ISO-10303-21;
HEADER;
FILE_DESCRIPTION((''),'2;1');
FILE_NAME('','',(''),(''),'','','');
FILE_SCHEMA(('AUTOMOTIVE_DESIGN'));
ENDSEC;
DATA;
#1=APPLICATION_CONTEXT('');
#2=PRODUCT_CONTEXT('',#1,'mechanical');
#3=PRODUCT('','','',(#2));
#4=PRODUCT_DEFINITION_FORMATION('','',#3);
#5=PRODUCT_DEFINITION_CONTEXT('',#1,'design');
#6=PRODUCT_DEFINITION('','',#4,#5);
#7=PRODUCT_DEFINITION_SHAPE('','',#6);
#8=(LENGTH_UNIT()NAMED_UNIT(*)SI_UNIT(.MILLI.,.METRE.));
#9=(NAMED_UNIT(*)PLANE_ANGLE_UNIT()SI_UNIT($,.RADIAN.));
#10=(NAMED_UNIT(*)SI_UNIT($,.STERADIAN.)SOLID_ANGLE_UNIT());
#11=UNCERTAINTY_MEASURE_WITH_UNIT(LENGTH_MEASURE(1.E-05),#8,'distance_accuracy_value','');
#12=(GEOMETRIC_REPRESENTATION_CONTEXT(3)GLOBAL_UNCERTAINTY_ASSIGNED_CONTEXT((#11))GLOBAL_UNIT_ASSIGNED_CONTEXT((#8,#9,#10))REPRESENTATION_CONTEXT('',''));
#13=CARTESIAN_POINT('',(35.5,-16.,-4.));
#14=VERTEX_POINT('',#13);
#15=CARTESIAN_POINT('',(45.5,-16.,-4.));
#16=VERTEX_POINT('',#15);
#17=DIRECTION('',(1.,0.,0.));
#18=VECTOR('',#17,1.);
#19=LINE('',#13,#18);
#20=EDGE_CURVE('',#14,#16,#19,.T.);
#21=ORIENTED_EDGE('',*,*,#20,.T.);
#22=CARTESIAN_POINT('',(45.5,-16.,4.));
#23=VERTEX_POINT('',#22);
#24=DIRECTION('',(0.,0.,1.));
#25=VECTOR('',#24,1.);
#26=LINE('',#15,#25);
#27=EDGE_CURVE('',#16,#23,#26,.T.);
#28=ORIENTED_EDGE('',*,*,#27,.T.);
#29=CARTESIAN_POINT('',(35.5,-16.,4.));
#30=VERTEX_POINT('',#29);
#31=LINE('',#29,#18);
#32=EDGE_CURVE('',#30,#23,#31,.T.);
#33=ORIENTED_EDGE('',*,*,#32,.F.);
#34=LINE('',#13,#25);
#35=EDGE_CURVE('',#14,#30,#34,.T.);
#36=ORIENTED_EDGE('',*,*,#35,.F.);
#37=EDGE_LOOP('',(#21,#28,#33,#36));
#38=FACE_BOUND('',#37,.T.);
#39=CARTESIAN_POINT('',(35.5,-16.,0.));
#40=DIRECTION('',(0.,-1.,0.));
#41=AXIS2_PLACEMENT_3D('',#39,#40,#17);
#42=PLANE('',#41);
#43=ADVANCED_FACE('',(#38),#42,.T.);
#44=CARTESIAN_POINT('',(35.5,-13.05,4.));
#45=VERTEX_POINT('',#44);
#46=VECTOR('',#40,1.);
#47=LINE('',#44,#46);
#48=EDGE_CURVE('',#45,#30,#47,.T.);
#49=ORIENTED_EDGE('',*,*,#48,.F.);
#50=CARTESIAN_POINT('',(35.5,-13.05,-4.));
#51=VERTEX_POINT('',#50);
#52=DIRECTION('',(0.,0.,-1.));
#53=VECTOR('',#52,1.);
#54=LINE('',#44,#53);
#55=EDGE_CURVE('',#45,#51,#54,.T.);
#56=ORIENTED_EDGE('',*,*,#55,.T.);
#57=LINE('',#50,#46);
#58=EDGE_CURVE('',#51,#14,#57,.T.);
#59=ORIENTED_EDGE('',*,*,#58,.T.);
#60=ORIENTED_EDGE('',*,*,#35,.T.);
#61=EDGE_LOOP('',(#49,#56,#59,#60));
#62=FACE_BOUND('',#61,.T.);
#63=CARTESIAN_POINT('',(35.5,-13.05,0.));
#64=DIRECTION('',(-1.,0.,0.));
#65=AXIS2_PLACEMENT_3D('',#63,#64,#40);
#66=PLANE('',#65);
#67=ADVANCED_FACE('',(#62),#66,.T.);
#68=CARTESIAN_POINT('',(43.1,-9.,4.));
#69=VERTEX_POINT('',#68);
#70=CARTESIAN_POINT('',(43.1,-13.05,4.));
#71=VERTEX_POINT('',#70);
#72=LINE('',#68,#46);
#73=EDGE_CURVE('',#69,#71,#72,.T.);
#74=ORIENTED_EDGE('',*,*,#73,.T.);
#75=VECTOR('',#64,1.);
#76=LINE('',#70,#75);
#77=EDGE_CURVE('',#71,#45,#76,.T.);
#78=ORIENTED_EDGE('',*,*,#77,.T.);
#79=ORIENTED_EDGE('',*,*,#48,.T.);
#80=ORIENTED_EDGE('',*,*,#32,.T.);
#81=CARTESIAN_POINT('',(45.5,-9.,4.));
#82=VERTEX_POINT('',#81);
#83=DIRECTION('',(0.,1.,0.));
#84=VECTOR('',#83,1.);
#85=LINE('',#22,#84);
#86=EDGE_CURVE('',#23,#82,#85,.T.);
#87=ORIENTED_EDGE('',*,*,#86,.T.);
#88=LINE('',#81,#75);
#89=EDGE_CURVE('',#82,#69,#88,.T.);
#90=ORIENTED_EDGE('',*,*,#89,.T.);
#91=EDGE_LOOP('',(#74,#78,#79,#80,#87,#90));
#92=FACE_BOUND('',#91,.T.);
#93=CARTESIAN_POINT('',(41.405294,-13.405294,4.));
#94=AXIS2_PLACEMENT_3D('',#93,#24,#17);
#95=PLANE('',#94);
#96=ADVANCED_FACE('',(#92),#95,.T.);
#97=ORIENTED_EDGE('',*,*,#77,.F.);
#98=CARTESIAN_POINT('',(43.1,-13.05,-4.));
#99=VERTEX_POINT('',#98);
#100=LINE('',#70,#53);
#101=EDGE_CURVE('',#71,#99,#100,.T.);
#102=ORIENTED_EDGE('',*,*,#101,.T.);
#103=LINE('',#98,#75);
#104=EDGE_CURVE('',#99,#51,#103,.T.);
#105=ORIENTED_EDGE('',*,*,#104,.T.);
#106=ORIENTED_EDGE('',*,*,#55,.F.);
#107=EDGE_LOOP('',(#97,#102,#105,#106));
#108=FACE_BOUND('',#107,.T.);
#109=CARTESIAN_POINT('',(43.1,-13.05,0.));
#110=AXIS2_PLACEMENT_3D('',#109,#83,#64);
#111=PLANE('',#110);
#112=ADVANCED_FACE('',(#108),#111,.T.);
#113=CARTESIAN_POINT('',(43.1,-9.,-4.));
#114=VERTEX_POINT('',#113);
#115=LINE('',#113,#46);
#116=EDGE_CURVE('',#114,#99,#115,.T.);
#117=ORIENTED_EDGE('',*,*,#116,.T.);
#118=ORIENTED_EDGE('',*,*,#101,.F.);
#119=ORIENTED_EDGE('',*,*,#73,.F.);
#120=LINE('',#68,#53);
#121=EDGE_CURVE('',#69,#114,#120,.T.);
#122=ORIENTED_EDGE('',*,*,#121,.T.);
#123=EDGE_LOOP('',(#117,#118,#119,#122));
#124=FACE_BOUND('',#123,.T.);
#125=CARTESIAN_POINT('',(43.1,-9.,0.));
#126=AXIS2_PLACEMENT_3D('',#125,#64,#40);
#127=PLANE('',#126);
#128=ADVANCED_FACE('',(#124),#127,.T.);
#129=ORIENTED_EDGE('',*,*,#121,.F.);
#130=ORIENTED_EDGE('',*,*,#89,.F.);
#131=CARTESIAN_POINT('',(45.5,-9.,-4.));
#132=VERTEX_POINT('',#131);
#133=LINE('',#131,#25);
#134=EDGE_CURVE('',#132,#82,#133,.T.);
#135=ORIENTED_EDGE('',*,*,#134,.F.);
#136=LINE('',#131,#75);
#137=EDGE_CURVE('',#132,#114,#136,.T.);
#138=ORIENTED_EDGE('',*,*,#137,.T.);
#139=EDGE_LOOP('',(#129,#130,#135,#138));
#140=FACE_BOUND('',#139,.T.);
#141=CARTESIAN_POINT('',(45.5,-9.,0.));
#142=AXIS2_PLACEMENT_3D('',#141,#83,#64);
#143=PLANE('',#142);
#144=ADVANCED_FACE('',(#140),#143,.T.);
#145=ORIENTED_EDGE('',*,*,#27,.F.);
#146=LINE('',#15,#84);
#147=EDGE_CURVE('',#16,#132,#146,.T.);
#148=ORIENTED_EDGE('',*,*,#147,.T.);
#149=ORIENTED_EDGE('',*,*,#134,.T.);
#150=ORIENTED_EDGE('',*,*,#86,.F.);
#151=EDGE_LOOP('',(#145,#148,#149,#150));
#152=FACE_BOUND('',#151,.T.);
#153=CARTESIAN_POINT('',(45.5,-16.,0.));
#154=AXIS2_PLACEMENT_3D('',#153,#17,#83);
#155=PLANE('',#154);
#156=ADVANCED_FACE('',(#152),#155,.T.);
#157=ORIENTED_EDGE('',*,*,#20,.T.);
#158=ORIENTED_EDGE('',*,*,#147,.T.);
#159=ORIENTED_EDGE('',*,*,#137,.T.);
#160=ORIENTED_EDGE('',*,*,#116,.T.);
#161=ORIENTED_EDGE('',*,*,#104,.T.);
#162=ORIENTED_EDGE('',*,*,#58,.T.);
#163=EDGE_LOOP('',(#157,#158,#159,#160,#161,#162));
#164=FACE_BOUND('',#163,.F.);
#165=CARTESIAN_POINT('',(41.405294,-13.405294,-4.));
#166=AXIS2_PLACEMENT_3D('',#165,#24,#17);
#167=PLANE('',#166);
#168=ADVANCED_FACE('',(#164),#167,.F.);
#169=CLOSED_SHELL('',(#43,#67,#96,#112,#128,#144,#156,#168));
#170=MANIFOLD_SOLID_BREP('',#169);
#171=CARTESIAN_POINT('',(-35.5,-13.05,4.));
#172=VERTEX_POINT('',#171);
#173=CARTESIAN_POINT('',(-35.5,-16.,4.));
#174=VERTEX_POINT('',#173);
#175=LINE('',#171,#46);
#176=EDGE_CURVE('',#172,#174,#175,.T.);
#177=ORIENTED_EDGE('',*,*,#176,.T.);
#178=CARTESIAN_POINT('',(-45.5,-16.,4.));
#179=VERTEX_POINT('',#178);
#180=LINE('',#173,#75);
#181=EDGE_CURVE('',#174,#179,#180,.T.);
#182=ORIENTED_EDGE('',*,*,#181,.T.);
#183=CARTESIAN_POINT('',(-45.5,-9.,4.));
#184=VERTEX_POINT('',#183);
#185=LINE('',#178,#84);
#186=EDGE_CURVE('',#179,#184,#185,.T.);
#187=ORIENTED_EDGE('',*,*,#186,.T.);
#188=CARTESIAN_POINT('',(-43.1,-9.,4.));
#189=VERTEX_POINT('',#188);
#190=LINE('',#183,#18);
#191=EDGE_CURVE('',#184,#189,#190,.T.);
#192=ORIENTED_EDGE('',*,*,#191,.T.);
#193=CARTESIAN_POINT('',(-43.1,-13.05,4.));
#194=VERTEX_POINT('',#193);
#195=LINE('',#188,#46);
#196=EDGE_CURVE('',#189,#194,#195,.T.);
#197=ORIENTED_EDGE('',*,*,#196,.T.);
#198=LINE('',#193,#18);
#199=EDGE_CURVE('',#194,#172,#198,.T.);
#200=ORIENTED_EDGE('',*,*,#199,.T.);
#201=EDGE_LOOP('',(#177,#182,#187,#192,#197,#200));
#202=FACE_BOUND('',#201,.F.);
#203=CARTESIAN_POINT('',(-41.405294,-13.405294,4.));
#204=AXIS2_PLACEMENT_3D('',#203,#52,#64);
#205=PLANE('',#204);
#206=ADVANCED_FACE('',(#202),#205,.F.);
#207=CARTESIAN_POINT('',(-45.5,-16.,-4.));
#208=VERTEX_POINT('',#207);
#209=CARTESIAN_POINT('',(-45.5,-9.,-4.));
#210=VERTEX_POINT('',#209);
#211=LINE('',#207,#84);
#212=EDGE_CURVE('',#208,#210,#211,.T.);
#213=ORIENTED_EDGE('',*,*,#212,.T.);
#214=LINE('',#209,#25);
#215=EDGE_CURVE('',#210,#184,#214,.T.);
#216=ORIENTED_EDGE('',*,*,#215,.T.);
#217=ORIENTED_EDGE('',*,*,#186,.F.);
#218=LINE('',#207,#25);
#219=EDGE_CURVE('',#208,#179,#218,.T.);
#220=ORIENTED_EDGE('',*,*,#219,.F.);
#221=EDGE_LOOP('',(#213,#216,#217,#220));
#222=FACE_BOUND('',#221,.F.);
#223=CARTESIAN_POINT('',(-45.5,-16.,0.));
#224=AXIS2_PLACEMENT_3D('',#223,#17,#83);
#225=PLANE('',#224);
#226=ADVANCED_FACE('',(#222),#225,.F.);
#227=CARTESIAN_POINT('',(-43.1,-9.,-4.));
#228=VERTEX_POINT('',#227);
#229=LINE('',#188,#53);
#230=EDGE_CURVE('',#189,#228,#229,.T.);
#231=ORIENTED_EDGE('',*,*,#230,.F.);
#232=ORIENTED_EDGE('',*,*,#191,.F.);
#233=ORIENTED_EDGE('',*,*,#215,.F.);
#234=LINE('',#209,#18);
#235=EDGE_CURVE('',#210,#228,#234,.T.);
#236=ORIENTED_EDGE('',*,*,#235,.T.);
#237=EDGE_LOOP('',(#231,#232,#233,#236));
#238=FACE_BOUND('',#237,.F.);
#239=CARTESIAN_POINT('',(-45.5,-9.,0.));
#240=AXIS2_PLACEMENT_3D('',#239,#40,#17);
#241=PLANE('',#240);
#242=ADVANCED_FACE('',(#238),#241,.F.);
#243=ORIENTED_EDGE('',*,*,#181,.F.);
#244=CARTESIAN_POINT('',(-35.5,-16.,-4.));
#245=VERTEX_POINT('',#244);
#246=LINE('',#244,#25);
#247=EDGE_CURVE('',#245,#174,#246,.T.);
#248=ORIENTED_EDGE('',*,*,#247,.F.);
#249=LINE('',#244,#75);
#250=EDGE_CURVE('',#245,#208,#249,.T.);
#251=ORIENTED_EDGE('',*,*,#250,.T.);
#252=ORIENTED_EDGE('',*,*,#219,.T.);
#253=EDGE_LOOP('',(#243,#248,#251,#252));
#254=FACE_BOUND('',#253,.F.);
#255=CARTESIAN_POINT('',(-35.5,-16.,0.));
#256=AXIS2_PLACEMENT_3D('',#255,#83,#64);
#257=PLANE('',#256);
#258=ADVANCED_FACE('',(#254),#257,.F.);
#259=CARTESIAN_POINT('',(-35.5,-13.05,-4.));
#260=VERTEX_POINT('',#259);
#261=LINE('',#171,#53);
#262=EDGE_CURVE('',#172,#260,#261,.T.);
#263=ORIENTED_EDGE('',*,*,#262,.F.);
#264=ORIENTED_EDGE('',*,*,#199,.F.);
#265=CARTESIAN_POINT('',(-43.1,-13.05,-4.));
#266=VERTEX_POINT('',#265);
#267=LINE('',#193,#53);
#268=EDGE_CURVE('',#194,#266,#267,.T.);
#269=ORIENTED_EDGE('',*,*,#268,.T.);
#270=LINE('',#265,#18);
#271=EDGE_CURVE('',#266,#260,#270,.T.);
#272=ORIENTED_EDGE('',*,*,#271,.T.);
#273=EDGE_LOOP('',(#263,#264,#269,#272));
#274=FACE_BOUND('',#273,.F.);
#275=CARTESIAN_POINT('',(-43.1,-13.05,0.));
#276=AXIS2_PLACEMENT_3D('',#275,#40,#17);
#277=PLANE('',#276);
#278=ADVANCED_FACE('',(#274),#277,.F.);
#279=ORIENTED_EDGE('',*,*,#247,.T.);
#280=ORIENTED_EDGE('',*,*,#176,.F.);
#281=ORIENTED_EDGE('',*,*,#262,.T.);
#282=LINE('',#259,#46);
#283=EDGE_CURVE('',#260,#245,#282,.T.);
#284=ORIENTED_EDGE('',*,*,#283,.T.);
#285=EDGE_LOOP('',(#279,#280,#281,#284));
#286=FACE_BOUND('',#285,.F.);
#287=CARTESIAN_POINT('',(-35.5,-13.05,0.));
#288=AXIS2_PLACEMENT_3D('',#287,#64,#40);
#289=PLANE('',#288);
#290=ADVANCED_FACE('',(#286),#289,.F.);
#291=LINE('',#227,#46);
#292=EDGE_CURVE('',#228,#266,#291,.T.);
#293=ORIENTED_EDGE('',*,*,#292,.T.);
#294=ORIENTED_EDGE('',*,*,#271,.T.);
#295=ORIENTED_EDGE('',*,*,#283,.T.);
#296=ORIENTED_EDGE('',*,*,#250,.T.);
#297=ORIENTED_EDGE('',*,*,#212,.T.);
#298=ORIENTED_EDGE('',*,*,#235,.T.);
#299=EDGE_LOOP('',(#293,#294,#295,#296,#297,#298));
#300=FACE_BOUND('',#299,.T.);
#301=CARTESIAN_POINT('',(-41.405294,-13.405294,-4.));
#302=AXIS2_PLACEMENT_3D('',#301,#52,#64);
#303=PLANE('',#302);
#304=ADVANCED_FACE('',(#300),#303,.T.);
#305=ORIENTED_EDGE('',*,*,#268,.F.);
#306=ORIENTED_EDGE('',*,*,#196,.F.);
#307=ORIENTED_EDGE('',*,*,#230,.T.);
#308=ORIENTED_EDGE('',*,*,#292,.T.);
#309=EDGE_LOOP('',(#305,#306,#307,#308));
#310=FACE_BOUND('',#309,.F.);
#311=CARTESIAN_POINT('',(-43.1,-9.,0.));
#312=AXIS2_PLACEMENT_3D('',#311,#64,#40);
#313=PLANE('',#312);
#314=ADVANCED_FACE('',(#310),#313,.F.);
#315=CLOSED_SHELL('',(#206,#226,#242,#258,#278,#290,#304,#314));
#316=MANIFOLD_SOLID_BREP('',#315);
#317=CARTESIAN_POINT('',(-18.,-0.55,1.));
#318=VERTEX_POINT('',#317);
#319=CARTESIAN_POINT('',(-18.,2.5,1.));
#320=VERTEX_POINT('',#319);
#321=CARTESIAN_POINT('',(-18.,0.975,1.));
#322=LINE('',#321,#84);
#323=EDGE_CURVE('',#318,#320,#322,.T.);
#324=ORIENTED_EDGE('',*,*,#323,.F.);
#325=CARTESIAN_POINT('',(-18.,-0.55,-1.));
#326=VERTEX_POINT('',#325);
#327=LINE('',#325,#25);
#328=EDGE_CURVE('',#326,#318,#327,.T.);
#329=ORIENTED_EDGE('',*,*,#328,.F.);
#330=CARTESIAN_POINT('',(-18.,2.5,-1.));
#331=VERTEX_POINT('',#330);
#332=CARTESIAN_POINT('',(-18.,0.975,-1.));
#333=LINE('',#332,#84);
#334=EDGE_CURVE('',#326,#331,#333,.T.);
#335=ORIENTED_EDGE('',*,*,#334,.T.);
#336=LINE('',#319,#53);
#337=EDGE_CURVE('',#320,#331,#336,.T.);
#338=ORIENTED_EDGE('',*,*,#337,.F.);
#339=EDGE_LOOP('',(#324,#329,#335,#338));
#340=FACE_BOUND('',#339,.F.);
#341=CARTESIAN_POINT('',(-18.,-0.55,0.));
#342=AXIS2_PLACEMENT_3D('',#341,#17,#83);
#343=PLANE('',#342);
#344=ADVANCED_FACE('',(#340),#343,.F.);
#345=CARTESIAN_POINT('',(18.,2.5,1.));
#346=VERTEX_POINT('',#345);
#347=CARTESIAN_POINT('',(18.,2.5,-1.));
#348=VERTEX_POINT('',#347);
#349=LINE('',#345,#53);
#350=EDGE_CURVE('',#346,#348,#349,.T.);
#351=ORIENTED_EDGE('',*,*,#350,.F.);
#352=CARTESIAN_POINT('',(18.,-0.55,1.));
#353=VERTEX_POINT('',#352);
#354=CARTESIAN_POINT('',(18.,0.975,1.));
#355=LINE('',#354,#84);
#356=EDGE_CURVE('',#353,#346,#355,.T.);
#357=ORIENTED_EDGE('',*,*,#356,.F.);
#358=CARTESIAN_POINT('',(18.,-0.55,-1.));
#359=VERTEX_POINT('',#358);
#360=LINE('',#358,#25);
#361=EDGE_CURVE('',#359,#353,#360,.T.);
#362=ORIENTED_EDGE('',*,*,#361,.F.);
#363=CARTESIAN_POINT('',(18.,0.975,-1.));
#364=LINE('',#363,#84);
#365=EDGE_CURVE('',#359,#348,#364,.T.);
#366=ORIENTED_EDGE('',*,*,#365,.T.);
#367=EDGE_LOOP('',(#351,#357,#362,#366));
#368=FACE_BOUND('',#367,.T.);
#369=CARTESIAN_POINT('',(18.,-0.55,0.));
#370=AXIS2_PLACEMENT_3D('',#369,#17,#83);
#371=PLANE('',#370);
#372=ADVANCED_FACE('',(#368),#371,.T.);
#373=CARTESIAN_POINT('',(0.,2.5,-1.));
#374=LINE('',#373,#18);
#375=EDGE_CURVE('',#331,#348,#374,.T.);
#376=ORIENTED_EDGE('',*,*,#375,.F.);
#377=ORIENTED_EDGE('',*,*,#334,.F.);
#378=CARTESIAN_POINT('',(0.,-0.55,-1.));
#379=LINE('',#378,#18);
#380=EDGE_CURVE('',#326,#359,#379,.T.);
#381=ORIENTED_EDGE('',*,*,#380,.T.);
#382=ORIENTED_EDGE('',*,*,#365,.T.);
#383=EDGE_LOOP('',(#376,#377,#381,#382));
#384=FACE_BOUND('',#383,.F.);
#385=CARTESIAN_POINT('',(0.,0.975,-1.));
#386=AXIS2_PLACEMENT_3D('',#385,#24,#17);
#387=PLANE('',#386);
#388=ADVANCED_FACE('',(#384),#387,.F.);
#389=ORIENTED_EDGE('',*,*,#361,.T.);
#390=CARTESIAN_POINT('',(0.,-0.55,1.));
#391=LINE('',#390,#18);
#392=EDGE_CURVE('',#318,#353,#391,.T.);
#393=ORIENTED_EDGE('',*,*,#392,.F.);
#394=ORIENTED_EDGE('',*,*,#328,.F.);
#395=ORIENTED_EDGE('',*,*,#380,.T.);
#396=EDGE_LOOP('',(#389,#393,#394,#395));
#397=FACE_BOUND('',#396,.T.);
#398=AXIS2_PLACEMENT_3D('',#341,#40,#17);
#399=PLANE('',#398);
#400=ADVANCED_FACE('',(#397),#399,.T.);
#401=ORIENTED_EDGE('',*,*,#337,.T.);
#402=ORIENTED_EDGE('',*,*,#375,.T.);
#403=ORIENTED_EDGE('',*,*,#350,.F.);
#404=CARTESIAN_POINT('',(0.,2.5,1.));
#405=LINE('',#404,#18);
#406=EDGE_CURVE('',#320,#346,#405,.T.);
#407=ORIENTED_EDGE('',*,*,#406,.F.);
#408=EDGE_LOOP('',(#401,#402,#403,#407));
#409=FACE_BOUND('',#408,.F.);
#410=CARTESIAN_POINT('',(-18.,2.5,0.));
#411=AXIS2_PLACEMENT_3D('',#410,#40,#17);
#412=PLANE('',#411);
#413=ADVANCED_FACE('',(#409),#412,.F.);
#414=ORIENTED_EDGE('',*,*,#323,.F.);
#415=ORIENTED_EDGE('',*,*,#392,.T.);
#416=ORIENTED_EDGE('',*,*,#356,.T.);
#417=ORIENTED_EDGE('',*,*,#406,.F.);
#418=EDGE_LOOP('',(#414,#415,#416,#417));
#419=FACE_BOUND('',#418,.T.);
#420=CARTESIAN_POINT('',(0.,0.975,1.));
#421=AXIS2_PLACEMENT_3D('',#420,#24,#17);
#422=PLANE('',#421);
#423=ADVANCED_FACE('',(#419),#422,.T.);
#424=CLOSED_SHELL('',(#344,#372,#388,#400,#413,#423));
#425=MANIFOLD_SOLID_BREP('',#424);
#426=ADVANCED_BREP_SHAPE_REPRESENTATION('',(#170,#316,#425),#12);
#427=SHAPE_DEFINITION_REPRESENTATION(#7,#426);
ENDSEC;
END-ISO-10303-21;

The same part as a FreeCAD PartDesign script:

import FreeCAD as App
import Part
import Sketcher
from FreeCAD import Vector

doc = App.newDocument("Part")
params = doc.addObject("Spreadsheet::Sheet", "Params")
for row, (alias, value) in enumerate([
    ("sketch1_width", "36 mm"),
    ("sketch1_height", "3.05 mm"),
    ("pad1_length", "2 mm"),
    ("sketch2_width", "10 mm"),
    ("sketch2_height", "7 mm"),
    ("sketch2_width2", "2.4 mm"),
    ("sketch2_height2", "2.95 mm"),
    ("pad2_length", "8 mm"),
    ("sketch3_width", "10 mm"),
    ("sketch3_height", "7 mm"),
    ("sketch3_width2", "2.4 mm"),
    ("sketch3_height2", "2.95 mm"),
    ("pad3_length", "8 mm"),
], start=1):
    params.set(f"A{row}", alias)
    params.set(f"B{row}", "=" + value)
    params.setAlias(f"B{row}", alias)

body = doc.addObject("PartDesign::Body", "Body")

# Sketch on XY plane
sketch1 = body.newObject("Sketcher::SketchObject", "Sketch")
sketch1.AttachmentSupport = (doc.getObject("XY_Plane"), [""])
sketch1.MapMode = "FlatFace"
sketch1.addGeometry(Part.LineSegment(Vector(-18, 2.5, 0), Vector(-18, -0.6, 0)), False)
sketch1.addGeometry(Part.LineSegment(Vector(-18, -0.6, 0), Vector(18, -0.6, 0)), False)
sketch1.addGeometry(Part.LineSegment(Vector(18, -0.6, 0), Vector(18, 2.5, 0)), False)
sketch1.addGeometry(Part.LineSegment(Vector(18, 2.5, 0), Vector(-18, 2.5, 0)), False)
sketch1.addConstraint(Sketcher.Constraint("Coincident", 0, 2, 1, 1))
sketch1.addConstraint(Sketcher.Constraint("Coincident", 1, 2, 2, 1))
sketch1.addConstraint(Sketcher.Constraint("Coincident", 2, 2, 3, 1))
sketch1.addConstraint(Sketcher.Constraint("Coincident", 3, 2, 0, 1))
sketch1.addConstraint(Sketcher.Constraint("Vertical", 0))
sketch1.addConstraint(Sketcher.Constraint("Horizontal", 1))
sketch1.addConstraint(Sketcher.Constraint("Vertical", 2))
sketch1.addConstraint(Sketcher.Constraint("Horizontal", 3))
sketch1.addConstraint(Sketcher.Constraint("DistanceX", 1, 1, 1, 2, 36.0))
sketch1.addConstraint(Sketcher.Constraint("DistanceX", 0, 2, -1, 1, 18.0))
sketch1.addConstraint(Sketcher.Constraint("DistanceY", 0, 2, 0, 1, 3.05))
sketch1.addConstraint(Sketcher.Constraint("DistanceY", -1, 1, 2, 2, 2.5))
sketch1.setExpression("Constraints[8]", "Params.sketch1_width")
sketch1.setExpression("Constraints[10]", "Params.sketch1_height")
pad1 = body.newObject("PartDesign::Pad", "Pad")
pad1.Profile = sketch1
pad1.setExpression("Length", "Params.pad1_length")
pad1.Midplane = True
body2 = doc.addObject("PartDesign::Body", "Body001")

# Sketch on XY plane
sketch2 = body2.newObject("Sketcher::SketchObject", "Sketch001")
sketch2.AttachmentSupport = (doc.getObject("XY_Plane001"), [""])
sketch2.MapMode = "FlatFace"
sketch2.addGeometry(Part.LineSegment(Vector(-43.1, -9, 0), Vector(-45.5, -9, 0)), False)
sketch2.addGeometry(Part.LineSegment(Vector(-45.5, -9, 0), Vector(-45.5, -16, 0)), False)
sketch2.addGeometry(Part.LineSegment(Vector(-45.5, -16, 0), Vector(-35.5, -16, 0)), False)
sketch2.addGeometry(Part.LineSegment(Vector(-35.5, -16, 0), Vector(-35.5, -13.1, 0)), False)
sketch2.addGeometry(Part.LineSegment(Vector(-35.5, -13.1, 0), Vector(-43.1, -13.1, 0)), False)
sketch2.addGeometry(Part.LineSegment(Vector(-43.1, -13.1, 0), Vector(-43.1, -9, 0)), False)
sketch2.addConstraint(Sketcher.Constraint("Coincident", 0, 2, 1, 1))
sketch2.addConstraint(Sketcher.Constraint("Coincident", 1, 2, 2, 1))
sketch2.addConstraint(Sketcher.Constraint("Coincident", 2, 2, 3, 1))
sketch2.addConstraint(Sketcher.Constraint("Coincident", 3, 2, 4, 1))
sketch2.addConstraint(Sketcher.Constraint("Coincident", 4, 2, 5, 1))
sketch2.addConstraint(Sketcher.Constraint("Coincident", 5, 2, 0, 1))
sketch2.addConstraint(Sketcher.Constraint("Horizontal", 0))
sketch2.addConstraint(Sketcher.Constraint("Vertical", 1))
sketch2.addConstraint(Sketcher.Constraint("Horizontal", 2))
sketch2.addConstraint(Sketcher.Constraint("Vertical", 3))
sketch2.addConstraint(Sketcher.Constraint("Horizontal", 4))
sketch2.addConstraint(Sketcher.Constraint("Vertical", 5))
sketch2.addConstraint(Sketcher.Constraint("DistanceX", 2, 1, 2, 2, 10.0))
sketch2.addConstraint(Sketcher.Constraint("DistanceY", 1, 2, 1, 1, 7.0))
sketch2.addConstraint(Sketcher.Constraint("DistanceX", 0, 2, 0, 1, 2.4))
sketch2.addConstraint(Sketcher.Constraint("DistanceY", 0, 2, -1, 1, 9.0))
sketch2.addConstraint(Sketcher.Constraint("DistanceY", 3, 1, 3, 2, 2.95))
sketch2.addConstraint(Sketcher.Constraint("DistanceX", 0, 2, -1, 1, 45.5))
sketch2.setExpression("Constraints[12]", "Params.sketch2_width")
sketch2.setExpression("Constraints[13]", "Params.sketch2_height")
sketch2.setExpression("Constraints[14]", "Params.sketch2_width2")
sketch2.setExpression("Constraints[16]", "Params.sketch2_height2")
pad2 = body2.newObject("PartDesign::Pad", "Pad001")
pad2.Profile = sketch2
pad2.setExpression("Length", "Params.pad2_length")
pad2.Midplane = True
body3 = doc.addObject("PartDesign::Body", "Body002")

# Sketch on XY plane
sketch3 = body3.newObject("Sketcher::SketchObject", "Sketch002")
sketch3.AttachmentSupport = (doc.getObject("XY_Plane002"), [""])
sketch3.MapMode = "FlatFace"
sketch3.addGeometry(Part.LineSegment(Vector(35.5, -13.1, 0), Vector(35.5, -16, 0)), False)
sketch3.addGeometry(Part.LineSegment(Vector(35.5, -16, 0), Vector(45.5, -16, 0)), False)
sketch3.addGeometry(Part.LineSegment(Vector(45.5, -16, 0), Vector(45.5, -9, 0)), False)
sketch3.addGeometry(Part.LineSegment(Vector(45.5, -9, 0), Vector(43.1, -9, 0)), False)
sketch3.addGeometry(Part.LineSegment(Vector(43.1, -9, 0), Vector(43.1, -13.1, 0)), False)
sketch3.addGeometry(Part.LineSegment(Vector(43.1, -13.1, 0), Vector(35.5, -13.1, 0)), False)
sketch3.addConstraint(Sketcher.Constraint("Coincident", 0, 2, 1, 1))
sketch3.addConstraint(Sketcher.Constraint("Coincident", 1, 2, 2, 1))
sketch3.addConstraint(Sketcher.Constraint("Coincident", 2, 2, 3, 1))
sketch3.addConstraint(Sketcher.Constraint("Coincident", 3, 2, 4, 1))
sketch3.addConstraint(Sketcher.Constraint("Coincident", 4, 2, 5, 1))
sketch3.addConstraint(Sketcher.Constraint("Coincident", 5, 2, 0, 1))
sketch3.addConstraint(Sketcher.Constraint("Vertical", 0))
sketch3.addConstraint(Sketcher.Constraint("Horizontal", 1))
sketch3.addConstraint(Sketcher.Constraint("Vertical", 2))
sketch3.addConstraint(Sketcher.Constraint("Horizontal", 3))
sketch3.addConstraint(Sketcher.Constraint("Vertical", 4))
sketch3.addConstraint(Sketcher.Constraint("Horizontal", 5))
sketch3.addConstraint(Sketcher.Constraint("DistanceX", 1, 1, 1, 2, 10.0))
sketch3.addConstraint(Sketcher.Constraint("DistanceY", 2, 1, 2, 2, 7.0))
sketch3.addConstraint(Sketcher.Constraint("DistanceX", 3, 2, 3, 1, 2.4))
sketch3.addConstraint(Sketcher.Constraint("DistanceY", 0, 2, -1, 1, 16.0))
sketch3.addConstraint(Sketcher.Constraint("DistanceY", 0, 2, 0, 1, 2.95))
sketch3.addConstraint(Sketcher.Constraint("DistanceX", -1, 1, 0, 2, 35.5))
sketch3.setExpression("Constraints[12]", "Params.sketch3_width")
sketch3.setExpression("Constraints[13]", "Params.sketch3_height")
sketch3.setExpression("Constraints[14]", "Params.sketch3_width2")
sketch3.setExpression("Constraints[16]", "Params.sketch3_height2")
pad3 = body3.newObject("PartDesign::Pad", "Pad002")
pad3.Profile = sketch3
pad3.setExpression("Length", "Params.pad3_length")
pad3.Midplane = True

doc.recompute()
